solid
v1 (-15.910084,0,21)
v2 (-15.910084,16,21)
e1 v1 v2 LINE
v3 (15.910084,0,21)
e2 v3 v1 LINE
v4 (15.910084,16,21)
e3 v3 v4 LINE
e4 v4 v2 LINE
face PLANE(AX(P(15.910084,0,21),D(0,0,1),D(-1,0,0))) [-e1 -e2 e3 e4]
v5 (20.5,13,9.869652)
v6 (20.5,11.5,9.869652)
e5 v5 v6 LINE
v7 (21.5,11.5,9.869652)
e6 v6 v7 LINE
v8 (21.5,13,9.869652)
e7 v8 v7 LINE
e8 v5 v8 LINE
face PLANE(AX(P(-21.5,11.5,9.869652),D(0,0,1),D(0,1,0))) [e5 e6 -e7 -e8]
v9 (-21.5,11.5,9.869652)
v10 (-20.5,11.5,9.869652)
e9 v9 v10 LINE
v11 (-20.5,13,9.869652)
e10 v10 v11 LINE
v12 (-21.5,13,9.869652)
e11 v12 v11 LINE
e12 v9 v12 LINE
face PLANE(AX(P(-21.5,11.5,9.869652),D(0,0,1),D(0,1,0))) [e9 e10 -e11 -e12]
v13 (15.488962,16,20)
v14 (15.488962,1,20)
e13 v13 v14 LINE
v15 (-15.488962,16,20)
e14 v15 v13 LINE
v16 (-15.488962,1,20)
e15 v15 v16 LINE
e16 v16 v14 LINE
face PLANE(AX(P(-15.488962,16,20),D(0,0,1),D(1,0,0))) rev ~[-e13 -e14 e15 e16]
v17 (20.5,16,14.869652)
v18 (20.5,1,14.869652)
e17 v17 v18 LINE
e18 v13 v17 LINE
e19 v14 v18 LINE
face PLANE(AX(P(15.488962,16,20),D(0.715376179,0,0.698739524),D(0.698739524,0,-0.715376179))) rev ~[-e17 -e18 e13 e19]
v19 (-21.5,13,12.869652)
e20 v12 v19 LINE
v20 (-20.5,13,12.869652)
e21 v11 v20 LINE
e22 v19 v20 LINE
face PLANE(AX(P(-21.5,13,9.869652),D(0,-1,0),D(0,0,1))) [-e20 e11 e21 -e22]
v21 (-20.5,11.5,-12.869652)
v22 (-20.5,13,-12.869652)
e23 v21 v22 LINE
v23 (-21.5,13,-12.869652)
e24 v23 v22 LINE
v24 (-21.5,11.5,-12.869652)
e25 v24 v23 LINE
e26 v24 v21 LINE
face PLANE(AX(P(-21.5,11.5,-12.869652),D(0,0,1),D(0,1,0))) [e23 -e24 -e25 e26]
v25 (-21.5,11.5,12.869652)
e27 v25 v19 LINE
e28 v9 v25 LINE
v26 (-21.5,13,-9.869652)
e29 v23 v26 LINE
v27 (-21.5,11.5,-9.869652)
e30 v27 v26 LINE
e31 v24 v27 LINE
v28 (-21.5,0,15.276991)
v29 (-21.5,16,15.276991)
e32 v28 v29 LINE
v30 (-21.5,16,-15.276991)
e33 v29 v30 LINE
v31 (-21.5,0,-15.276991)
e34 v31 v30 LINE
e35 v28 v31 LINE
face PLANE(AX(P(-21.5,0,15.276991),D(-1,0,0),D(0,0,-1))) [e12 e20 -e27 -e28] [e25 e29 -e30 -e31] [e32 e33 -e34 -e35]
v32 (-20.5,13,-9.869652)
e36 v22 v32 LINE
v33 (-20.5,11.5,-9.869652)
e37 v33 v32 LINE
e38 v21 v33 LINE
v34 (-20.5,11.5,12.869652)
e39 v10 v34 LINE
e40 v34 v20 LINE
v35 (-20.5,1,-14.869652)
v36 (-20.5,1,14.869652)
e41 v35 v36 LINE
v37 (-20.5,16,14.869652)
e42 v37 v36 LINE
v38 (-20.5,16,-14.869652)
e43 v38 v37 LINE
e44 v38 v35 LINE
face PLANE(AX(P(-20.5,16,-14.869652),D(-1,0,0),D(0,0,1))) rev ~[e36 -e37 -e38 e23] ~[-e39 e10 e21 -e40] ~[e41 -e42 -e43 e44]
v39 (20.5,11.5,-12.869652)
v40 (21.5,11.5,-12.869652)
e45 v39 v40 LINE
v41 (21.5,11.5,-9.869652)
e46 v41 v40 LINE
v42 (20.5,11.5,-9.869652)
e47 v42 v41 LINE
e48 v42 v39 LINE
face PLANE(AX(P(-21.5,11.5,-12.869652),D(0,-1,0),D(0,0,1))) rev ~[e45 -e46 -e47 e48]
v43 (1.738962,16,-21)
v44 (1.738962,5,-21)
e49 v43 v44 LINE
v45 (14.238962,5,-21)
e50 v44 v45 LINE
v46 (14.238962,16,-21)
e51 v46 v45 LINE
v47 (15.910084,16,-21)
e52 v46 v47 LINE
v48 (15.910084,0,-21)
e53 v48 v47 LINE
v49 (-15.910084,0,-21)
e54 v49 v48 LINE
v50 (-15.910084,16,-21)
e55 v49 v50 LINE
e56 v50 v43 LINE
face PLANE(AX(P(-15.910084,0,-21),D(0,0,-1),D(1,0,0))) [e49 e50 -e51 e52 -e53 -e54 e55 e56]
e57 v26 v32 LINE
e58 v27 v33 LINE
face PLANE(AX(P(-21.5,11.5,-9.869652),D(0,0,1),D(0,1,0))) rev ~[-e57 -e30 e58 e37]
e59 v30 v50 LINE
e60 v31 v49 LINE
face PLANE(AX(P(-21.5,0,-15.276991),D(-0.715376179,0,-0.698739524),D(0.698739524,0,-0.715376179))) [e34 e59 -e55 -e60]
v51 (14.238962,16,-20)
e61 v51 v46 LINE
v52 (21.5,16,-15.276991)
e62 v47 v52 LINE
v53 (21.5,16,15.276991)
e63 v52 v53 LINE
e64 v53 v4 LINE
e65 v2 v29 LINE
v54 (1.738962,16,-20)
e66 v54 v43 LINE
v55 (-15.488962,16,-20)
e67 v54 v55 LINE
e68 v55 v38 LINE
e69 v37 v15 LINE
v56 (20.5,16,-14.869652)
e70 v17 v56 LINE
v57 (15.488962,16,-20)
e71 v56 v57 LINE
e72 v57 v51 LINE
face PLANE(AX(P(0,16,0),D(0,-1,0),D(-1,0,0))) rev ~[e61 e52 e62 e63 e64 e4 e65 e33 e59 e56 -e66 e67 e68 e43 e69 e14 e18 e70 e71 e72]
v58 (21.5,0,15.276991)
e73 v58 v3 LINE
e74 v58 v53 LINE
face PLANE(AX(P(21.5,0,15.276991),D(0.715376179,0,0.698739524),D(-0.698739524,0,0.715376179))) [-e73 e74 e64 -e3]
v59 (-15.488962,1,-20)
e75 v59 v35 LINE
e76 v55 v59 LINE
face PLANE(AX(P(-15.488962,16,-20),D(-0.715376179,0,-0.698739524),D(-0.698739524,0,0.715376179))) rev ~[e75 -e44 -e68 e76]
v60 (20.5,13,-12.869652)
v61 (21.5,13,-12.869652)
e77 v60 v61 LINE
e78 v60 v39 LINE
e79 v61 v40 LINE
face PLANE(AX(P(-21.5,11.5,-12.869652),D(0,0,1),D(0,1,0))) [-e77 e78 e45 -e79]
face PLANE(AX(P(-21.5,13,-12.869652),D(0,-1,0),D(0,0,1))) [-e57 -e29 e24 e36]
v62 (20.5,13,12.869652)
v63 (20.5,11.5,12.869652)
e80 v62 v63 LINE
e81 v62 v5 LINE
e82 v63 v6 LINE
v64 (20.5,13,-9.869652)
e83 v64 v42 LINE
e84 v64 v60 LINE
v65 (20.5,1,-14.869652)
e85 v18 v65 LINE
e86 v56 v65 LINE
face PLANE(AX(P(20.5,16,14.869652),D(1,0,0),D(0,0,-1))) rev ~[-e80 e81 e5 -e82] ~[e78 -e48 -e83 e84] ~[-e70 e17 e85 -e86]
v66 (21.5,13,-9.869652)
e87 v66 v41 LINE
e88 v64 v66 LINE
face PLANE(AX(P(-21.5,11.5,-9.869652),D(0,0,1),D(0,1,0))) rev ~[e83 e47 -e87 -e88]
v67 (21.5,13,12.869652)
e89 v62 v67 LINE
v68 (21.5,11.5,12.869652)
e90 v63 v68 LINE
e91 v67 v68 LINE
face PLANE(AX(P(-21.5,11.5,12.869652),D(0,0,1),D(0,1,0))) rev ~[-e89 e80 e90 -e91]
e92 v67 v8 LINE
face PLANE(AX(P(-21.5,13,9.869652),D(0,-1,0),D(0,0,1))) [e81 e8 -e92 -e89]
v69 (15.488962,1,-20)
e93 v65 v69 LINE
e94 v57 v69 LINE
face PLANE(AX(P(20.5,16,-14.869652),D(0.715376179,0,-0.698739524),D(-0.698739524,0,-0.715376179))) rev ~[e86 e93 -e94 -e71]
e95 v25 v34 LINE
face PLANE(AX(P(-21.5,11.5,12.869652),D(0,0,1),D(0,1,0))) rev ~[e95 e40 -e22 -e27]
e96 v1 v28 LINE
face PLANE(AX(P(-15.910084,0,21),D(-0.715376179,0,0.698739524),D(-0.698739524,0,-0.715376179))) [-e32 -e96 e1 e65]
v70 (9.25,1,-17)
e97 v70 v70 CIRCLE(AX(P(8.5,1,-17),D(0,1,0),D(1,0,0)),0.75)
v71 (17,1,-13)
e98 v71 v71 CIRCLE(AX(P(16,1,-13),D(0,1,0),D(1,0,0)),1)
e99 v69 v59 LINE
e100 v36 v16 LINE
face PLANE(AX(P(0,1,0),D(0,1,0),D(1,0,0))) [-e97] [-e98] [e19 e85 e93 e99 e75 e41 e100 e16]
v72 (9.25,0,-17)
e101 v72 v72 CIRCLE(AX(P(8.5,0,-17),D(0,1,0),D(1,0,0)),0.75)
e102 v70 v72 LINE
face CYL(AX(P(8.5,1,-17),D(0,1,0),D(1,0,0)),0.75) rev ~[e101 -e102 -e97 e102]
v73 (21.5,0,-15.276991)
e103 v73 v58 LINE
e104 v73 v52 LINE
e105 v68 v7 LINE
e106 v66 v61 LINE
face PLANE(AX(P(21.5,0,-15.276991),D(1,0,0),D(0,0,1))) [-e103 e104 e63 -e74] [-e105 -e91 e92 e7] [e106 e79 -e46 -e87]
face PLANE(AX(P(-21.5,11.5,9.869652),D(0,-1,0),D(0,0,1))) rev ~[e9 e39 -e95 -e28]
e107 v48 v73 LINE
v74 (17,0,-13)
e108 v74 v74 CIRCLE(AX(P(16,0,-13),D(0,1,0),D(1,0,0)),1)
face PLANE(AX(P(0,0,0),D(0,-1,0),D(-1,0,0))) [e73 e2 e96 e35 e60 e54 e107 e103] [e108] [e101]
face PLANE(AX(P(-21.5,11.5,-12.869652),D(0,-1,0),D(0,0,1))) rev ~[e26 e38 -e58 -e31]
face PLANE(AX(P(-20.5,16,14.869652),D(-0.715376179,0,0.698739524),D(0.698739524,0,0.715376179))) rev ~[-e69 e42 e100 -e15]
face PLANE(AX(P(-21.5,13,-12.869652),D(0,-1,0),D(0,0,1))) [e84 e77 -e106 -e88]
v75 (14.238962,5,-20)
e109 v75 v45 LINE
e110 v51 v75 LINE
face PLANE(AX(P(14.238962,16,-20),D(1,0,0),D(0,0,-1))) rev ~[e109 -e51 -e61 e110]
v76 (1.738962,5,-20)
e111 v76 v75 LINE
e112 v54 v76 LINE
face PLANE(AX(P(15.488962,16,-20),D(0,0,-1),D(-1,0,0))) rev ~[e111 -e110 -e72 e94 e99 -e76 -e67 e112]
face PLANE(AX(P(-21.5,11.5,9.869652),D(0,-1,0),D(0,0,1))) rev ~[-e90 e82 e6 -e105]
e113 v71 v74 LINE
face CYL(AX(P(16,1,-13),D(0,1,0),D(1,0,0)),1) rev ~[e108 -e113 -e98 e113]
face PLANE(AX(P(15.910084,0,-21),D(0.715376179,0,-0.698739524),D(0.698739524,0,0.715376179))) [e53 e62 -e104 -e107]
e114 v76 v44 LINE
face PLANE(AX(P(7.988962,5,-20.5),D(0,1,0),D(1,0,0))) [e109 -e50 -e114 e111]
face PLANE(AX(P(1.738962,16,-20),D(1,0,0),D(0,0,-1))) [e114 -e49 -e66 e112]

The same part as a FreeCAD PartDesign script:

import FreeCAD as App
import Part
import Sketcher
from FreeCAD import Vector

doc = App.newDocument("Part")
body = doc.addObject("PartDesign::Body", "Body")

# Sketch on XZ plane
sketch1 = body.newObject("Sketcher::SketchObject", "Sketch")
sketch1.AttachmentSupport = (doc.getObject("XZ_Plane"), [""])
sketch1.MapMode = "FlatFace"
sketch1.addGeometry(Part.LineSegment(Vector(-16, -21, 0), Vector(-22, -15, 0)), False)
sketch1.addGeometry(Part.LineSegment(Vector(-22, -15, 0), Vector(-22, 15, 0)), False)
sketch1.addGeometry(Part.LineSegment(Vector(-22, 15, 0), Vector(-16, 21, 0)), False)
sketch1.addGeometry(Part.LineSegment(Vector(-16, 21, 0), Vector(16, 21, 0)), False)
sketch1.addGeometry(Part.LineSegment(Vector(16, 21, 0), Vector(22, 15, 0)), False)
sketch1.addGeometry(Part.LineSegment(Vector(22, 15, 0), Vector(22, -15, 0)), False)
sketch1.addGeometry(Part.LineSegment(Vector(22, -15, 0), Vector(16, -21, 0)), False)
sketch1.addGeometry(Part.LineSegment(Vector(16, -21, 0), Vector(-16, -21, 0)), False)
sketch1.addConstraint(Sketcher.Constraint("Coincident", 0, 2, 1, 1))
sketch1.addConstraint(Sketcher.Constraint("Coincident", 1, 2, 2, 1))
sketch1.addConstraint(Sketcher.Constraint("Coincident", 2, 2, 3, 1))
sketch1.addConstraint(Sketcher.Constraint("Coincident", 3, 2, 4, 1))
sketch1.addConstraint(Sketcher.Constraint("Coincident", 4, 2, 5, 1))
sketch1.addConstraint(Sketcher.Constraint("Coincident", 5, 2, 6, 1))
sketch1.addConstraint(Sketcher.Constraint("Coincident", 6, 2, 7, 1))
sketch1.addConstraint(Sketcher.Constraint("Coincident", 7, 2, 0, 1))
sketch1.addConstraint(Sketcher.Constraint("Vertical", 1))
sketch1.addConstraint(Sketcher.Constraint("Horizontal", 3))
sketch1.addConstraint(Sketcher.Constraint("Vertical", 5))
sketch1.addConstraint(Sketcher.Constraint("Horizontal", 7))
sketch1.addConstraint(Sketcher.Constraint("Symmetric", 0, 2, 4, 2, -1, 1))
sketch1.addConstraint(Sketcher.Constraint("Symmetric", 2, 2, 6, 2, -1, 1))
sketch1.addConstraint(Sketcher.Constraint("Parallel", 0, 4))
sketch1.addConstraint(Sketcher.Constraint("Parallel", 2, 6))
sketch1.addConstraint(Sketcher.Constraint("Horizontal", 1, 2, 4, 2))
sketch1.addConstraint(Sketcher.Constraint("Vertical", 3, 2, 6, 2))
sketch1.addConstraint(Sketcher.Constraint("Distance", 0, 8.0))
sketch1.addConstraint(Sketcher.Constraint("DistanceY", -1, 1, 2, 2, 21.0))
sketch1.addConstraint(Sketcher.Constraint("DistanceX", 1, 2, 4, 2, 43.0))
sketch1.addConstraint(Sketcher.Constraint("DistanceY", 1, 1, 1, 2, 30.553981))
pad1 = body.newObject("PartDesign::Pad", "Pad")
pad1.Profile = sketch1
pad1.Length = 16
pad1.Reversed = True

# Sketch on XZ plane
sketch2 = body.newObject("Sketcher::SketchObject", "Sketch001")
sketch2.AttachmentSupport = (doc.getObject("XZ_Plane"), [""])
sketch2.MapMode = "FlatFace"
sketch2.AttachmentOffset = App.Placement(Vector(0, 0, -16), App.Rotation())
sketch2.addGeometry(Part.LineSegment(Vector(-15, -20, 0), Vector(-20, -15, 0)), False)
sketch2.addGeometry(Part.LineSegment(Vector(-20, -15, 0), Vector(-20, 15, 0)), False)
sketch2.addGeometry(Part.LineSegment(Vector(-20, 15, 0), Vector(-15, 20, 0)), False)
sketch2.addGeometry(Part.LineSegment(Vector(-15, 20, 0), Vector(15, 20, 0)), False)
sketch2.addGeometry(Part.LineSegment(Vector(15, 20, 0), Vector(20, 15, 0)), False)
sketch2.addGeometry(Part.LineSegment(Vector(20, 15, 0), Vector(20, -15, 0)), False)
sketch2.addGeometry(Part.LineSegment(Vector(20, -15, 0), Vector(15, -20, 0)), False)
sketch2.addGeometry(Part.LineSegment(Vector(15, -20, 0), Vector(-15, -20, 0)), False)
sketch2.addConstraint(Sketcher.Constraint("Coincident", 0, 2, 1, 1))
sketch2.addConstraint(Sketcher.Constraint("Coincident", 1, 2, 2, 1))
sketch2.addConstraint(Sketcher.Constraint("Coincident", 2, 2, 3, 1))
sketch2.addConstraint(Sketcher.Constraint("Coincident", 3, 2, 4, 1))
sketch2.addConstraint(Sketcher.Constraint("Coincident", 4, 2, 5, 1))
sketch2.addConstraint(Sketcher.Constraint("Coincident", 5, 2, 6, 1))
sketch2.addConstraint(Sketcher.Constraint("Coincident", 6, 2, 7, 1))
sketch2.addConstraint(Sketcher.Constraint("Coincident", 7, 2, 0, 1))
sketch2.addConstraint(Sketcher.Constraint("Vertical", 1))
sketch2.addConstraint(Sketcher.Constraint("Horizontal", 3))
sketch2.addConstraint(Sketcher.Constraint("Vertical", 5))
sketch2.addConstraint(Sketcher.Constraint("Horizontal", 7))
sketch2.addConstraint(Sketcher.Constraint("Symmetric", 0, 2, 4, 2, -1, 1))
sketch2.addConstraint(Sketcher.Constraint("Symmetric", 2, 2, 6, 2, -1, 1))
sketch2.addConstraint(Sketcher.Constraint("Parallel", 0, 4))
sketch2.addConstraint(Sketcher.Constraint("Parallel", 2, 6))
sketch2.addConstraint(Sketcher.Constraint("Horizontal", 1, 2, 4, 2))
sketch2.addConstraint(Sketcher.Constraint("Vertical", 3, 2, 6, 2))
sketch2.addConstraint(Sketcher.Constraint("DistanceY", -1, 1, 2, 2, 20.0))
sketch2.addConstraint(Sketcher.Constraint("DistanceX", 1, 2, 4, 2, 41.0))
sketch2.addConstraint(Sketcher.Constraint("Distance", 0, 7.171539))
sketch2.addConstraint(Sketcher.Constraint("DistanceX", 3, 1, 3, 2, 30.977924))
pocket1 = body.newObject("PartDesign::Pocket", "Pocket")
pocket1.Profile = sketch2
pocket1.Length = 15
pocket1.Reversed = True

# Sketch on XZ plane
sketch3 = body.newObject("Sketcher::SketchObject", "Sketch002")
sketch3.AttachmentSupport = (doc.getObject("XZ_Plane"), [""])
sketch3.MapMode = "FlatFace"
sketch3.AttachmentOffset = App.Placement(Vector(0, 0, -16), App.Rotation())
sketch3.addGeometry(Part.Circle(Vector(16.5, -12.3, 0), Vector(0, 0, 1), 1), False)
sketch3.addGeometry(Part.LineSegment(Vector(1.7, -21, 0), Vector(1.7, -20, 0)), False)
sketch3.addGeometry(Part.LineSegment(Vector(1.7, -20, 0), Vector(14.2, -20, 0)), False)
sketch3.addGeometry(Part.LineSegment(Vector(14.2, -20, 0), Vector(14.2, -21, 0)), False)
sketch3.addGeometry(Part.LineSegment(Vector(14.2, -21, 0), Vector(1.7, -21, 0)), False)
sketch3.addConstraint(Sketcher.Constraint("Coincident", 1, 2, 2, 1))
sketch3.addConstraint(Sketcher.Constraint("Coincident", 2, 2, 3, 1))
sketch3.addConstraint(Sketcher.Constraint("Coincident", 3, 2, 4, 1))
sketch3.addConstraint(Sketcher.Constraint("Coincident", 4, 2, 1, 1))
sketch3.addConstraint(Sketcher.Constraint("Vertical", 1))
sketch3.addConstraint(Sketcher.Constraint("Horizontal", 2))
sketch3.addConstraint(Sketcher.Constraint("Vertical", 3))
sketch3.addConstraint(Sketcher.Constraint("Horizontal", 4))
sketch3.addConstraint(Sketcher.Constraint("DistanceY", 1, 1, 1, 2, 1.0))
sketch3.addConstraint(Sketcher.Constraint("DistanceX", 2, 1, 2, 2, 12.5))
sketch3.addConstraint(Sketcher.Constraint("DistanceY", 1, 2, -1, 1, 20.0))
sketch3.addConstraint(Sketcher.Constraint("DistanceX", -1, 1, 0, 3, 16.5))
sketch3.addConstraint(Sketcher.Constraint("Diameter", 0, 2.005861))
sketch3.addConstraint(Sketcher.Constraint("DistanceY", 0, 3, -1, 1, 12.27162))
sketch3.addConstraint(Sketcher.Constraint("DistanceX", -1, 1, 1, 2, 1.738962))
pocket2 = body.newObject("PartDesign::Pocket", "Pocket001")
pocket2.Profile = sketch3
pocket2.Length = 11
pocket2.Reversed = True

# Sketch on YZ plane
sketch4 = body.newObject("Sketcher::SketchObject", "Sketch003")
sketch4.AttachmentSupport = (doc.getObject("YZ_Plane"), [""])
sketch4.MapMode = "FlatFace"
sketch4.AttachmentOffset = App.Placement(Vector(0, 0, -21.5), App.Rotation())
sketch4.addGeometry(Part.LineSegment(Vector(13, -12.9, 0), Vector(11.5, -12.9, 0)), False)
sketch4.addGeometry(Part.LineSegment(Vector(11.5, -12.9, 0), Vector(11.5, -9.9, 0)), False)
sketch4.addGeometry(Part.LineSegment(Vector(11.5, -9.9, 0), Vector(13, -9.9, 0)), False)
sketch4.addGeometry(Part.LineSegment(Vector(13, -9.9, 0), Vector(13, -12.9, 0)), False)
sketch4.addGeometry(Part.LineSegment(Vector(13, 9.9, 0), Vector(11.5, 9.9, 0)), False)
sketch4.addGeometry(Part.LineSegment(Vector(11.5, 9.9, 0), Vector(11.5, 12.9, 0)), False)
sketch4.addGeometry(Part.LineSegment(Vector(11.5, 12.9, 0), Vector(13, 12.9, 0)), False)
sketch4.addGeometry(Part.LineSegment(Vector(13, 12.9, 0), Vector(13, 9.9, 0)), False)
sketch4.addConstraint(Sketcher.Constraint("Coincident", 0, 2, 1, 1))
sketch4.addConstraint(Sketcher.Constraint("Coincident", 1, 2, 2, 1))
sketch4.addConstraint(Sketcher.Constraint("Coincident", 2, 2, 3, 1))
sketch4.addConstraint(Sketcher.Constraint("Coincident", 3, 2, 0, 1))
sketch4.addConstraint(Sketcher.Constraint("Coincident", 4, 2, 5, 1))
sketch4.addConstraint(Sketcher.Constraint("Coincident", 5, 2, 6, 1))
sketch4.addConstraint(Sketcher.Constraint("Coincident", 6, 2, 7, 1))
sketch4.addConstraint(Sketcher.Constraint("Coincident", 7, 2, 4, 1))
sketch4.addConstraint(Sketcher.Constraint("Horizontal", 0))
sketch4.addConstraint(Sketcher.Constraint("Vertical", 1))
sketch4.addConstraint(Sketcher.Constraint("Horizontal", 2))
sketch4.addConstraint(Sketcher.Constraint("Vertical", 3))
sketch4.addConstraint(Sketcher.Constraint("Horizontal", 4))
sketch4.addConstraint(Sketcher.Constraint("Vertical", 5))
sketch4.addConstraint(Sketcher.Constraint("Horizontal", 6))
sketch4.addConstraint(Sketcher.Constraint("Vertical", 7))
sketch4.addConstraint(Sketcher.Constraint("Symmetric", 1, 2, 4, 2, -1))
sketch4.addConstraint(Sketcher.Constraint("Symmetric", 3, 2, 6, 2, -1))
sketch4.addConstraint(Sketcher.Constraint("DistanceY", 1, 1, 1, 2, 3.0))
sketch4.addConstraint(Sketcher.Constraint("DistanceX", 0, 2, 0, 1, 1.5))
sketch4.addConstraint(Sketcher.Constraint("DistanceX", -1, 1, 2, 2, 13.0))
sketch4.addConstraint(Sketcher.Constraint("DistanceY", 0, 2, -1, 1, 12.869652))
pocket3 = body.newObject("PartDesign::Pocket", "Pocket002")
pocket3.Profile = sketch4
pocket3.Type = "ThroughAll"
pocket3.Midplane = True

# Sketch on XZ plane
sketch5 = body.newObject("Sketcher::SketchObject", "Sketch004")
sketch5.AttachmentSupport = (doc.getObject("XZ_Plane"), [""])
sketch5.MapMode = "FlatFace"
sketch5.AttachmentOffset = App.Placement(Vector(0, 0, -1), App.Rotation())
sketch5.addGeometry(Part.Circle(Vector(16, -13, 0), Vector(0, 0, 1), 1), False)
sketch5.addGeometry(Part.Circle(Vector(8.5, -17, 0), Vector(0, 0, 1), 0.8), False)
sketch5.addConstraint(Sketcher.Constraint("Diameter", 0, 2.0))
sketch5.addConstraint(Sketcher.Constraint("Diameter", 1, 1.5))
sketch5.addConstraint(Sketcher.Constraint("DistanceX", -1, 1, 0, 3, 16.0))
sketch5.addConstraint(Sketcher.Constraint("DistanceY", 0, 3, -1, 1, 13.0))
sketch5.addConstraint(Sketcher.Constraint("DistanceY", 1, 3, -1, 1, 17.0))
sketch5.addConstraint(Sketcher.Constraint("DistanceX", -1, 1, 1, 3, 8.5))
pocket4 = body.newObject("PartDesign::Pocket", "Pocket003")
pocket4.Profile = sketch5
pocket4.Length = 1
pocket4.Reversed = True

doc.recompute()
